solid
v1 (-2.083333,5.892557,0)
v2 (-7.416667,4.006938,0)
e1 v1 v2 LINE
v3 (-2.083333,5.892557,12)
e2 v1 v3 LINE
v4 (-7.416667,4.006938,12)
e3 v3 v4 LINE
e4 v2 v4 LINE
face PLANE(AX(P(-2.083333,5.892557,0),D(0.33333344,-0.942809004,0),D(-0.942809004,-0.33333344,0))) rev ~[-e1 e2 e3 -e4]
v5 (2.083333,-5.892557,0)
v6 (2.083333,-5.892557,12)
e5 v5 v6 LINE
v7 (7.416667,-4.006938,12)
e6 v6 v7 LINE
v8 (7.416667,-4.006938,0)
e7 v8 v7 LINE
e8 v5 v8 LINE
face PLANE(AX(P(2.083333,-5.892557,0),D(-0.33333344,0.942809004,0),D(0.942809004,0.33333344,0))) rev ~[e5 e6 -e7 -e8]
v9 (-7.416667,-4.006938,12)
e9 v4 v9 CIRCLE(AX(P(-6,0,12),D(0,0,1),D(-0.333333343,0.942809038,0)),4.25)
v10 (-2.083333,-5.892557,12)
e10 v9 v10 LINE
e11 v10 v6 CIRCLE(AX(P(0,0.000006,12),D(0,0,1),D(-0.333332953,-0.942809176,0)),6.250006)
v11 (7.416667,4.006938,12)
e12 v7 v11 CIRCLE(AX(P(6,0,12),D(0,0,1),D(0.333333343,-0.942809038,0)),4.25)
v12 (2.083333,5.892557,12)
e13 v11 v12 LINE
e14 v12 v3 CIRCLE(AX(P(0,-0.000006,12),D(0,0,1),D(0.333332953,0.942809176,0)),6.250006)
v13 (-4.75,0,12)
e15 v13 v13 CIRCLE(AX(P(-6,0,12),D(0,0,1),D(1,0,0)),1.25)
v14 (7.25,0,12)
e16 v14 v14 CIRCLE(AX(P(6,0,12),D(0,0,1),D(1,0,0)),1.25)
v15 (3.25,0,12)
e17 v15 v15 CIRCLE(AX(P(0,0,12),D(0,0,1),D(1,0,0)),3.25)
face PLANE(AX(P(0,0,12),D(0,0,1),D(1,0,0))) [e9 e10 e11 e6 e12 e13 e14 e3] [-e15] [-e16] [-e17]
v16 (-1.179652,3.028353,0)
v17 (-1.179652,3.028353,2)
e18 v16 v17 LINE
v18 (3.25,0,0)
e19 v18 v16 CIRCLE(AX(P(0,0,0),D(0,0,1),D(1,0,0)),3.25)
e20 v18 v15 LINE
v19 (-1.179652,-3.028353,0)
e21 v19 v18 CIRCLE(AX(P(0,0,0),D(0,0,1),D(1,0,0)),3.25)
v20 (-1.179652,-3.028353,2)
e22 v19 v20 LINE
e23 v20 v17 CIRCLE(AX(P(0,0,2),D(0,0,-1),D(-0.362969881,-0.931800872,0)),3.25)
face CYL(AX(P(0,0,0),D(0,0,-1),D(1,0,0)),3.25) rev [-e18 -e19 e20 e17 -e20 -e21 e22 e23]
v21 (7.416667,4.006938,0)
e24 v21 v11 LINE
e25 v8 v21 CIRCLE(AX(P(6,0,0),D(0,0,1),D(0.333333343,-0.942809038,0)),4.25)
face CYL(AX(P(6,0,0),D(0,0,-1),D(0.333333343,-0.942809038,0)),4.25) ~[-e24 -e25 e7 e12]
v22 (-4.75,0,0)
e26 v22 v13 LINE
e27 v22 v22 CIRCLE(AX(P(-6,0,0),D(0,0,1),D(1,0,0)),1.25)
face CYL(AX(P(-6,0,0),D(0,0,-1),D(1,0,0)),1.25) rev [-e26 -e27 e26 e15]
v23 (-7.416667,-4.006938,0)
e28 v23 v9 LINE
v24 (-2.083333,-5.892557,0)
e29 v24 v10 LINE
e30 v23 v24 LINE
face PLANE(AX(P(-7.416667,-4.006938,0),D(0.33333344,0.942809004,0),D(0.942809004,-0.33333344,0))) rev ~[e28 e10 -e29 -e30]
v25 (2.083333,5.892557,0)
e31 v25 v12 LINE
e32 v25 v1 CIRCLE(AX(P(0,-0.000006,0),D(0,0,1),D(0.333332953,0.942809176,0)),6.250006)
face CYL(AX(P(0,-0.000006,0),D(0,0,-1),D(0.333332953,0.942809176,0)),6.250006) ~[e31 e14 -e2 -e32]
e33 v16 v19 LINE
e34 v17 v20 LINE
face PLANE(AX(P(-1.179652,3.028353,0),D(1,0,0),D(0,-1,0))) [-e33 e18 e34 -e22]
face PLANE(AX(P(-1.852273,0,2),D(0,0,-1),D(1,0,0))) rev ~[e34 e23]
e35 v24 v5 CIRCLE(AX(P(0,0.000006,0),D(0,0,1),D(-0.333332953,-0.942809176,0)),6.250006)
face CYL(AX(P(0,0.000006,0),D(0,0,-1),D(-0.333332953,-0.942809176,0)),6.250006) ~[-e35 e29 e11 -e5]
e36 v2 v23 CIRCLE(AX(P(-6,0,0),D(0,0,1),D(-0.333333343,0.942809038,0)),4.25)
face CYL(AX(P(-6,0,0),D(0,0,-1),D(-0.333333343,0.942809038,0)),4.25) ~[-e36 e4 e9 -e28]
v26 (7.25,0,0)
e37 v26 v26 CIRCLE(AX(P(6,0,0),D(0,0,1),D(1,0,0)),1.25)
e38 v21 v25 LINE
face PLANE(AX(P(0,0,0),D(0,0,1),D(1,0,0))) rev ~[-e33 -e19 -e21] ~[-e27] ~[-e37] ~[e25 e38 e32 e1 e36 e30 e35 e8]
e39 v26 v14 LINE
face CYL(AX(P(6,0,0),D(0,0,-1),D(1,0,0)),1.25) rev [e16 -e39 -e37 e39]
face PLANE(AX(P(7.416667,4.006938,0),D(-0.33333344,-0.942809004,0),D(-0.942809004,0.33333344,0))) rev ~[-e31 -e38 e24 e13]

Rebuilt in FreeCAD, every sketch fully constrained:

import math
import FreeCAD as App
import Part
import Sketcher

doc = App.newDocument("Part")
body = doc.addObject("PartDesign::Body", "Body")

sketch1 = doc.addObject("Sketcher::SketchObject", "Sketch")
body.addObject(sketch1)
sketch1.AttachmentSupport = (doc.XY_Plane, [""])
sketch1.MapMode = "FlatFace"
sketch1.addGeometry([
    Part.ArcOfCircle(Part.Circle(App.Vector(6, 0, 0), App.Vector(0, 0, 1), 4.2), math.radians(-71), math.radians(71)),
    Part.LineSegment(App.Vector(7.4, 4, 0), App.Vector(2.1, 5.9, 0)),
    Part.ArcOfCircle(Part.Circle(App.Vector(0, 0, 0), App.Vector(0, 0, 1), 6.3), math.radians(71), math.radians(109)),
    Part.LineSegment(App.Vector(-2.1, 5.9, 0), App.Vector(-7.4, 4, 0)),
    Part.ArcOfCircle(Part.Circle(App.Vector(-6, 0, 0), App.Vector(0, 0, 1), 4.2), math.radians(109), math.radians(251)),
    Part.LineSegment(App.Vector(-7.4, -4, 0), App.Vector(-2.1, -5.9, 0)),
    Part.ArcOfCircle(Part.Circle(App.Vector(0, 0, 0), App.Vector(0, 0, 1), 6.3), math.radians(-109), math.radians(-71)),
    Part.LineSegment(App.Vector(2.1, -5.9, 0), App.Vector(7.4, -4, 0)),
    Part.Circle(App.Vector(-6, 0, 0), App.Vector(0, 0, 1), 1.2),
    Part.Circle(App.Vector(0, 0, 0), App.Vector(0, 0, 1), 3.2),
    Part.Circle(App.Vector(6, 0, 0), App.Vector(0, 0, 1), 1.2),
], False)
sketch1.addConstraint([
    Sketcher.Constraint("Tangent", 0, 2, 1, 1),
    Sketcher.Constraint("Tangent", 1, 2, 2, 1),
    Sketcher.Constraint("Tangent", 2, 2, 3, 1),
    Sketcher.Constraint("Tangent", 3, 2, 4, 1),
    Sketcher.Constraint("Tangent", 4, 2, 5, 1),
    Sketcher.Constraint("Tangent", 5, 2, 6, 1),
    Sketcher.Constraint("Tangent", 6, 2, 7, 1),
    Sketcher.Constraint("Tangent", 7, 2, 0, 1),
    Sketcher.Constraint("Coincident", 2, 3, -1, 1),
    Sketcher.Constraint("Coincident", 6, 3, -1, 1),
    Sketcher.Constraint("Coincident", 9, 3, -1, 1),
    Sketcher.Constraint("Coincident", 8, 3, 4, 3),
    Sketcher.Constraint("Coincident", 10, 3, 0, 3),
    Sketcher.Constraint("Equal", 0, 4),
    Sketcher.Constraint("Equal", 2, 6),
    Sketcher.Constraint("Equal", 8, 10),
    Sketcher.Constraint("Symmetric", 0, 3, 4, 3, -1, 1),
    Sketcher.Constraint("PointOnObject", 0, 3, -1),
    Sketcher.Constraint("Diameter", 8, 2.5),
    Sketcher.Constraint("Diameter", 9, 6.5),
    Sketcher.Constraint("Radius", 0, 4.25),
    Sketcher.Constraint("DistanceX", -1, 1, 0, 3, 6.0),
    Sketcher.Constraint("Radius", 2, 6.250006),
])
pad1 = doc.addObject("PartDesign::Pad", "Pad")
body.addObject(pad1)
pad1.Profile = sketch1
pad1.Length = 12

sketch2 = doc.addObject("Sketcher::SketchObject", "Sketch001")
body.addObject(sketch2)
sketch2.AttachmentSupport = (doc.XY_Plane, [""])
sketch2.MapMode = "FlatFace"
sketch2.addGeometry([
    Part.LineSegment(App.Vector(-1.2, 3, 0), App.Vector(-1.2, -3, 0)),
    Part.ArcOfCircle(Part.Circle(App.Vector(0, 0, 0), App.Vector(0, 0, 1), 3.3), math.radians(111), math.radians(249)),
], False)
sketch2.addConstraint([
    Sketcher.Constraint("Coincident", 0, 1, 1, 1),
    Sketcher.Constraint("Coincident", 1, 2, 0, 2),
    Sketcher.Constraint("Vertical", 0),
    Sketcher.Constraint("Coincident", 1, 3, -1, 1),
    Sketcher.Constraint("Radius", 1, 3.25),
    Sketcher.Constraint("DistanceY", 0, 2, 0, 1, 6.056706),
])
pad2 = doc.addObject("PartDesign::Pad", "Pad001")
body.addObject(pad2)
pad2.Profile = sketch2
pad2.Length = 2

doc.recompute()
